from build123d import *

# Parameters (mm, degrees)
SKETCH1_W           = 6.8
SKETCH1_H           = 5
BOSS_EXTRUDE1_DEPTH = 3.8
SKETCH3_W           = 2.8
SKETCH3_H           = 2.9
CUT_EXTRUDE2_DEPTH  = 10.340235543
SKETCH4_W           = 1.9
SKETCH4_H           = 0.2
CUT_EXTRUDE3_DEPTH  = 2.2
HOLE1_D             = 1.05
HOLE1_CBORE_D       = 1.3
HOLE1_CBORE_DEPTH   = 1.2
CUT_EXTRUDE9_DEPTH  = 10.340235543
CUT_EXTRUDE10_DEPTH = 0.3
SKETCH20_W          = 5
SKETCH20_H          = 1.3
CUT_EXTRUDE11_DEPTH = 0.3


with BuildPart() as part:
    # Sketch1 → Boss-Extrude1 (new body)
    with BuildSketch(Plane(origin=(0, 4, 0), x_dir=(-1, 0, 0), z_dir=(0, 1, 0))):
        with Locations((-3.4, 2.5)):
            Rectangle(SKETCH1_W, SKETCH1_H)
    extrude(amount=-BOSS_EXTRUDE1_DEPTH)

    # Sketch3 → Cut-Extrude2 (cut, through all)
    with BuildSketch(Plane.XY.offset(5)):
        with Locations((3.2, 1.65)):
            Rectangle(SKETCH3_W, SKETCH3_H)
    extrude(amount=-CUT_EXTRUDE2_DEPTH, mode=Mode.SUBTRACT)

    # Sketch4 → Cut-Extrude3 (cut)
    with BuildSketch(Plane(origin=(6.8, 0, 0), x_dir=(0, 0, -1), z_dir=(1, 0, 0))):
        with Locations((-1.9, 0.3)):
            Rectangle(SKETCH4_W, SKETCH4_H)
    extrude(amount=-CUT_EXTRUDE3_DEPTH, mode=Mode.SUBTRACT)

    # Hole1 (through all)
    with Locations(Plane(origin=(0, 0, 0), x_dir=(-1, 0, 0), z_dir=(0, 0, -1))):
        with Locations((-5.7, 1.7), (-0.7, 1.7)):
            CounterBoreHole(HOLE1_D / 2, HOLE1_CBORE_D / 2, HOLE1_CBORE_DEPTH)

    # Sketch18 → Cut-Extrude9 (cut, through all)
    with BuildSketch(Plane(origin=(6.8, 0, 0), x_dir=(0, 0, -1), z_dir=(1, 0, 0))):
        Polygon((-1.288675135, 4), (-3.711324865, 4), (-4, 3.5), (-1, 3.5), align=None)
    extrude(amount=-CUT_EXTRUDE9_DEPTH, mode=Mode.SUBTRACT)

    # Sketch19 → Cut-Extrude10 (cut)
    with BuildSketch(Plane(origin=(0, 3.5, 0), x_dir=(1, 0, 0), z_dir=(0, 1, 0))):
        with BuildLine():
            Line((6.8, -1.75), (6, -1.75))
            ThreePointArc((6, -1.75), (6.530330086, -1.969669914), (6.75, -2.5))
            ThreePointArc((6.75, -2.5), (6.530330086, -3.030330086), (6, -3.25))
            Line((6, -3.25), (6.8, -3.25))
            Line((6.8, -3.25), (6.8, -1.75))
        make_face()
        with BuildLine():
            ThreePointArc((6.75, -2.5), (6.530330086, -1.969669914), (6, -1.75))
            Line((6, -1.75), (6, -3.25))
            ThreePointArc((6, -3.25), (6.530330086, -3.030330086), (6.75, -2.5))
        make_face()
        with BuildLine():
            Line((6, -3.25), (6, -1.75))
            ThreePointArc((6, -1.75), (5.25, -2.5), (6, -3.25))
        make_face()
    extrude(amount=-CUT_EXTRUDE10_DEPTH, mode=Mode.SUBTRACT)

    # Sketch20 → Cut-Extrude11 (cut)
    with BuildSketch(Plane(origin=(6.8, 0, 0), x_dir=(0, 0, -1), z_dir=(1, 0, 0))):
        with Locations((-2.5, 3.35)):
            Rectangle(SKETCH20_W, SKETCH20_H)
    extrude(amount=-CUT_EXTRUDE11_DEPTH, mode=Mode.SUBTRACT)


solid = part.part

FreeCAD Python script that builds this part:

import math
import FreeCAD as App
import Part
import Sketcher
Q = App.Units.Quantity


def add_polygon(sketch, points):
    """Adds a closed chain of lines whose ends are joined by coincident constraints."""
    first, n = sketch.GeometryCount, len(points)
    for a, b in zip(points, points[1:] + points[:1]):
        sketch.addGeometry(Part.LineSegment(App.Vector(*a, 0), App.Vector(*b, 0)), False)
    for i in range(n):
        sketch.addConstraint(Sketcher.Constraint("Coincident", first + i, 2, first + (i + 1) % n, 1))

doc = App.newDocument("Part")
body = doc.addObject("PartDesign::Body", "Body")

sketch1 = body.newObject("Sketcher::SketchObject", "Sketch")
sketch1.AttachmentSupport = (doc.getObject("XZ_Plane"), [""])
sketch1.MapMode = "FlatFace"
sketch1.AttachmentOffset = App.Placement(App.Vector(0, 0, -4), App.Rotation())
add_polygon(sketch1, [(7, 5), (7, 0), (0, 0), (0, 5)])
sketch1.addConstraint(Sketcher.Constraint("Vertical", 0))
sketch1.addConstraint(Sketcher.Constraint("Horizontal", 1))
sketch1.addConstraint(Sketcher.Constraint("Vertical", 2))
sketch1.addConstraint(Sketcher.Constraint("Horizontal", 3))
sketch1.addConstraint(Sketcher.Constraint("Coincident", 1, 2, -1, 1))
sketch1.addConstraint(Sketcher.Constraint("DistanceY", 0, 2, 0, 1, Q("5 mm")))
sketch1.addConstraint(Sketcher.Constraint("DistanceX", 1, 2, 1, 1, Q("6.8 mm")))
pad1 = body.newObject("PartDesign::Pad", "Pad")
pad1.Profile = sketch1
pad1.Length = 3.8

sketch2 = body.newObject("Sketcher::SketchObject", "Sketch001")
sketch2.AttachmentSupport = (doc.getObject("XY_Plane"), [""])
sketch2.MapMode = "FlatFace"
sketch2.AttachmentOffset = App.Placement(App.Vector(0, 0, 5), App.Rotation())
add_polygon(sketch2, [(1.8, 3.1), (1.8, 0.2), (4.6, 0.2), (4.6, 3.1)])
sketch2.addConstraint(Sketcher.Constraint("Vertical", 0))
sketch2.addConstraint(Sketcher.Constraint("Horizontal", 1))
sketch2.addConstraint(Sketcher.Constraint("Vertical", 2))
sketch2.addConstraint(Sketcher.Constraint("Horizontal", 3))
sketch2.addConstraint(Sketcher.Constraint("DistanceX", 1, 1, 1, 2, Q("2.8 mm")))
sketch2.addConstraint(Sketcher.Constraint("DistanceY", 0, 2, 0, 1, Q("2.9 mm")))
sketch2.addConstraint(Sketcher.Constraint("DistanceX", -1, 1, 0, 2, Q("1.8 mm")))
sketch2.addConstraint(Sketcher.Constraint("DistanceY", -1, 1, 0, 2, Q("0.2 mm")))
pocket1 = body.newObject("PartDesign::Pocket", "Pocket")
pocket1.Profile = sketch2
pocket1.Type = "ThroughAll"

sketch3 = body.newObject("Sketcher::SketchObject", "Sketch002")
sketch3.AttachmentSupport = (doc.getObject("YZ_Plane"), [""])
sketch3.MapMode = "FlatFace"
sketch3.AttachmentOffset = App.Placement(App.Vector(0, 0, 6.8), App.Rotation())
add_polygon(sketch3, [(0.4, 2.85), (0.2, 2.85), (0.2, 0.95), (0.4, 0.95)])
sketch3.addConstraint(Sketcher.Constraint("Horizontal", 0))
sketch3.addConstraint(Sketcher.Constraint("Vertical", 1))
sketch3.addConstraint(Sketcher.Constraint("Horizontal", 2))
sketch3.addConstraint(Sketcher.Constraint("Vertical", 3))
sketch3.addConstraint(Sketcher.Constraint("DistanceX", 0, 2, 0, 1, Q("0.2 mm")))
sketch3.addConstraint(Sketcher.Constraint("DistanceY", 1, 2, 1, 1, Q("1.9 mm")))
sketch3.addConstraint(Sketcher.Constraint("DistanceX", -1, 1, 0, 2, Q("0.2 mm")))
sketch3.addConstraint(Sketcher.Constraint("DistanceY", -1, 1, 0, 2, Q("2.85 mm")))
pocket2 = body.newObject("PartDesign::Pocket", "Pocket001")
pocket2.Profile = sketch3
pocket2.Length = 2.2

sketch4 = body.newObject("Sketcher::SketchObject", "Sketch003")
sketch4.AttachmentSupport = (doc.getObject("XY_Plane"), [""])
sketch4.MapMode = "FlatFace"
sketch4.addGeometry(Part.Circle(App.Vector(5.7, 1.7, 0), App.Vector(0, 0, 1), 0.5), False)
sketch4.addGeometry(Part.Circle(App.Vector(0.7, 1.7, 0), App.Vector(0, 0, 1), 0.5), False)
sketch4.addConstraint(Sketcher.Constraint("Equal", 0, 1))
sketch4.addConstraint(Sketcher.Constraint("Horizontal", 0, 3, 1, 3))
sketch4.addConstraint(Sketcher.Constraint("Diameter", 0, Q("1.05 mm")))
sketch4.addConstraint(Sketcher.Constraint("DistanceX", 1, 3, 0, 3, Q("5 mm")))
sketch4.addConstraint(Sketcher.Constraint("DistanceX", -1, 1, 0, 3, Q("5.7 mm")))
sketch4.addConstraint(Sketcher.Constraint("DistanceY", -1, 1, 0, 3, Q("1.7 mm")))
doc.recompute()
hole = body.newObject("PartDesign::Hole", "Hole")
hole.Profile = sketch4
hole.ThreadType = "None"
hole.Diameter = 1.05
hole.DepthType = "ThroughAll"
hole.HoleCutType = "Counterbore"
hole.HoleCutDiameter = 1.3
hole.HoleCutDepth = 1.2
hole.Reversed = True

sketch5 = body.newObject("Sketcher::SketchObject", "Sketch004")
sketch5.AttachmentSupport = (doc.getObject("YZ_Plane"), [""])
sketch5.MapMode = "FlatFace"
sketch5.AttachmentOffset = App.Placement(App.Vector(0, 0, 6.8), App.Rotation())
add_polygon(sketch5, [(4, 1.3), (4, 3.7), (3.5, 4), (3.5, 1)])
sketch5.addConstraint(Sketcher.Constraint("Vertical", 0))
sketch5.addConstraint(Sketcher.Constraint("Vertical", 2))
sketch5.addConstraint(Sketcher.Constraint("Equal", 1, 3))
sketch5.addConstraint(Sketcher.Constraint("DistanceY", 2, 2, 2, 1, Q("3 mm")))
sketch5.addConstraint(Sketcher.Constraint("Angle", 1, Q("150 deg")))
sketch5.addConstraint(Sketcher.Constraint("DistanceX", -1, 1, 0, 2, Q("4 mm")))
sketch5.addConstraint(Sketcher.Constraint("DistanceY", -1, 1, 1, 2, Q("4 mm")))
sketch5.addConstraint(Sketcher.Constraint("DistanceX", -1, 1, 1, 2, Q("3.5 mm")))
pocket3 = body.newObject("PartDesign::Pocket", "Pocket002")
pocket3.Profile = sketch5
pocket3.Type = "ThroughAll"

sketch6 = body.newObject("Sketcher::SketchObject", "Sketch005")
sketch6.AttachmentSupport = (doc.getObject("XZ_Plane"), [""])
sketch6.MapMode = "FlatFace"
sketch6.AttachmentOffset = App.Placement(App.Vector(0, 0, -3.5), App.Rotation())
sketch6.addGeometry(Part.LineSegment(App.Vector(6.8, 1.8, 0), App.Vector(6, 1.8, 0)), False)
sketch6.addGeometry(Part.ArcOfCircle(Part.Circle(App.Vector(6, 2.5, 0), App.Vector(0, 0, 1), 0.8), math.radians(90), math.radians(270)), False)
sketch6.addGeometry(Part.LineSegment(App.Vector(6, 3.2, 0), App.Vector(6.8, 3.2, 0)), False)
sketch6.addGeometry(Part.LineSegment(App.Vector(6.8, 3.2, 0), App.Vector(6.8, 1.8, 0)), False)
sketch6.addConstraint(Sketcher.Constraint("Tangent", 0, 2, 1, 2))
sketch6.addConstraint(Sketcher.Constraint("Tangent", 1, 1, 2, 1))
sketch6.addConstraint(Sketcher.Constraint("Coincident", 2, 2, 3, 1))
sketch6.addConstraint(Sketcher.Constraint("Coincident", 3, 2, 0, 1))
sketch6.addConstraint(Sketcher.Constraint("Horizontal", 0))
sketch6.addConstraint(Sketcher.Constraint("Horizontal", 2))
sketch6.addConstraint(Sketcher.Constraint("Vertical", 3))
sketch6.addConstraint(Sketcher.Constraint("Radius", 1, Q("0.75 mm")))
sketch6.addConstraint(Sketcher.Constraint("DistanceX", 0, 2, 0, 1, Q("0.8 mm")))
sketch6.addConstraint(Sketcher.Constraint("DistanceX", -1, 1, 1, 3, Q("6 mm")))
sketch6.addConstraint(Sketcher.Constraint("DistanceY", -1, 1, 1, 3, Q("2.5 mm")))
pocket4 = body.newObject("PartDesign::Pocket", "Pocket003")
pocket4.Profile = sketch6
pocket4.Length = 0.3
pocket4.Reversed = True

sketch7 = body.newObject("Sketcher::SketchObject", "Sketch006")
sketch7.AttachmentSupport = (doc.getObject("YZ_Plane"), [""])
sketch7.MapMode = "FlatFace"
sketch7.AttachmentOffset = App.Placement(App.Vector(0, 0, 6.8), App.Rotation())
add_polygon(sketch7, [(4, 5), (2.7, 5), (2.7, 0), (4, 0)])
sketch7.addConstraint(Sketcher.Constraint("Horizontal", 0))
sketch7.addConstraint(Sketcher.Constraint("Vertical", 1))
sketch7.addConstraint(Sketcher.Constraint("Horizontal", 2))
sketch7.addConstraint(Sketcher.Constraint("Vertical", 3))
sketch7.addConstraint(Sketcher.Constraint("PointOnObject", 1, 2, -1))
sketch7.addConstraint(Sketcher.Constraint("DistanceY", 1, 2, 1, 1, Q("5 mm")))
sketch7.addConstraint(Sketcher.Constraint("DistanceX", 0, 2, 0, 1, Q("1.3 mm")))
sketch7.addConstraint(Sketcher.Constraint("DistanceX", -1, 1, 2, 2, Q("4 mm")))
pocket5 = body.newObject("PartDesign::Pocket", "Pocket004")
pocket5.Profile = sketch7
pocket5.Length = 0.3

doc.recompute()
